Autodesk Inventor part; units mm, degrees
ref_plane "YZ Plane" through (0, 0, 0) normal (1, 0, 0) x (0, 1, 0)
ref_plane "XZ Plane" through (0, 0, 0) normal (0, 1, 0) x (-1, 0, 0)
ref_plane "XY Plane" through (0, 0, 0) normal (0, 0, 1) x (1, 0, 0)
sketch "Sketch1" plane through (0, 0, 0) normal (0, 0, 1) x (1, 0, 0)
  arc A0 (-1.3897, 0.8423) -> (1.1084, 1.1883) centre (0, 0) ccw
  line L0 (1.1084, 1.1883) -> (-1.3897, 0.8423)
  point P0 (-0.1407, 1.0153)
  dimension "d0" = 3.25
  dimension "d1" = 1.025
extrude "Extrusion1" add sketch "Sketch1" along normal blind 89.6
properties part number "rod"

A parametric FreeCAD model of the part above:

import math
import FreeCAD as App
import Part
import Sketcher

V = App.Vector
Q = App.Units.Quantity

doc = App.newDocument("Part")
params = doc.addObject("Spreadsheet::Sheet", "Params")
for row, (alias, value) in enumerate([
    ("pad1_length", "89.6 mm"),
], start=1):
    params.set(f"A{row}", alias)
    params.set(f"B{row}", "=" + value)
    params.setAlias(f"B{row}", alias)

body = doc.addObject("PartDesign::Body", "Body")

# Sketch on XY plane
sketch1 = body.newObject("Sketcher::SketchObject", "Sketch")
sketch1.AttachmentSupport = (doc.getObject("XY_Plane"), [""])
sketch1.MapMode = "FlatFace"
sketch1.addGeometry(Part.LineSegment(V(1.1, 1.2, 0), V(-1.4, 0.8, 0)), False)
sketch1.addGeometry(Part.ArcOfCircle(Part.Circle(V(0, 0, 0), V(0, 0, 1), 1.6), math.radians(149), math.radians(407)), False)
sketch1.addConstraint(Sketcher.Constraint("Coincident", 0, 1, 1, 2))
sketch1.addConstraint(Sketcher.Constraint("Coincident", 1, 1, 0, 2))
sketch1.addConstraint(Sketcher.Constraint("Coincident", 1, 3, -1, 1))
sketch1.addConstraint(Sketcher.Constraint("Radius", 1, Q("1.625 mm")))
sketch1.addConstraint(Sketcher.Constraint("Distance", 0, Q("2.522 mm")))
sketch1.addConstraint(Sketcher.Constraint("DistanceX", 1, 1, 0, 1, Q("2.498 mm")))
pad1 = body.newObject("PartDesign::Pad", "Pad")
pad1.Profile = sketch1
pad1.setExpression("Length", "Params.pad1_length")

doc.recompute()
